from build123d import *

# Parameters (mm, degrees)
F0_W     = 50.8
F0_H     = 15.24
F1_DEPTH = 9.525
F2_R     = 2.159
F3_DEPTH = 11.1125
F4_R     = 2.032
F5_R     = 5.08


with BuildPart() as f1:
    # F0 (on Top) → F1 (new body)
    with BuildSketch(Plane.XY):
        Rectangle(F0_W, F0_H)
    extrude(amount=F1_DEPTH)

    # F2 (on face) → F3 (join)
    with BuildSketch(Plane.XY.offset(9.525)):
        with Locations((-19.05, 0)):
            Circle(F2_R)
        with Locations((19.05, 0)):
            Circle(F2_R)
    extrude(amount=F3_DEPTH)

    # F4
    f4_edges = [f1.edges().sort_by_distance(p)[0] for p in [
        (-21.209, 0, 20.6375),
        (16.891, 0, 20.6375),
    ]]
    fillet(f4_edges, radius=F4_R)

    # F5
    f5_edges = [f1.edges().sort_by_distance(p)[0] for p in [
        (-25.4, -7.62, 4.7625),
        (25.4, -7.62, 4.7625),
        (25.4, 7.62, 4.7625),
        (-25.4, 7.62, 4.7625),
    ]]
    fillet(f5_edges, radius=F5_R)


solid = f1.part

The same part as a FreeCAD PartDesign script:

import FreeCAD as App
import Part
import Sketcher

V = App.Vector
Q = App.Units.Quantity


def edges_at(feature, points):
    """Names of the edges that pass closest to the given points."""
    edges = feature.Shape.Edges
    near = lambda p: min(range(len(edges)), key=lambda i: edges[i].distToShape(Part.Vertex(*p))[0])
    return sorted({f"Edge{near(p) + 1}" for p in points})


def add_polygon(sketch, points):
    """Adds a closed chain of lines whose ends are joined by coincident constraints."""
    first, n = sketch.GeometryCount, len(points)
    for a, b in zip(points, points[1:] + points[:1]):
        sketch.addGeometry(Part.LineSegment(App.Vector(*a, 0), App.Vector(*b, 0)), False)
    for i in range(n):
        sketch.addConstraint(Sketcher.Constraint("Coincident", first + i, 2, first + (i + 1) % n, 1))

doc = App.newDocument("Part")
body = doc.addObject("PartDesign::Body", "Body")

sketch1 = doc.addObject("Sketcher::SketchObject", "Sketch")
body.addObject(sketch1)
sketch1.AttachmentSupport = (doc.XY_Plane, [""])
sketch1.MapMode = "FlatFace"
add_polygon(sketch1, [(-25.4, 7.62), (-25.4, -7.62), (25.4, -7.62), (25.4, 7.62)])
sketch1.addConstraint([
    Sketcher.Constraint("Vertical", 0),
    Sketcher.Constraint("Horizontal", 1),
    Sketcher.Constraint("Vertical", 2),
    Sketcher.Constraint("Horizontal", 3),
    Sketcher.Constraint("Symmetric", 0, 2, 2, 2, -1, 1),
    Sketcher.Constraint("DistanceX", 1, 1, 1, 2, Q("2 in")),
    Sketcher.Constraint("DistanceY", 0, 2, 0, 1, Q("0.6 in")),
])
pad1 = doc.addObject("PartDesign::Pad", "Pad")
body.addObject(pad1)
pad1.Profile = sketch1
pad1.Length = Q("0.375 in")

sketch2 = doc.addObject("Sketcher::SketchObject", "Sketch001")
body.addObject(sketch2)
sketch2.AttachmentSupport = (doc.XY_Plane, [""])
sketch2.MapMode = "FlatFace"
sketch2.AttachmentOffset = App.Placement(V(0, 0, 0.375 * 25.4), App.Rotation())
sketch2.addGeometry([
    Part.Circle(V(-19.05, 0, 0), V(0, 0, 1), 2.159),
    Part.Circle(V(19.05, 0, 0), V(0, 0, 1), 2.159),
], False)
sketch2.addConstraint([
    Sketcher.Constraint("Equal", 0, 1),
    Sketcher.Constraint("Symmetric", 0, 3, 1, 3, -1, 1),
    Sketcher.Constraint("PointOnObject", 0, 3, -1),
    Sketcher.Constraint("Diameter", 0, Q("0.17 in")),
    Sketcher.Constraint("DistanceX", 0, 3, 1, 3, Q("1.5 in")),
])
pad2 = doc.addObject("PartDesign::Pad", "Pad001")
body.addObject(pad2)
pad2.Profile = sketch2
pad2.Length = Q("0.4375 in")
doc.recompute()

fillet = doc.addObject("PartDesign::Fillet", "Fillet")
body.addObject(fillet)
fillet.Base = (pad2, edges_at(pad2, [(-21.209, 0, 20.637), (16.891, 0, 20.637)]))
fillet.Radius = Q("0.08 in")
doc.recompute()

fillet2 = doc.addObject("PartDesign::Fillet", "Fillet001")
body.addObject(fillet2)
fillet2.Base = (fillet, edges_at(fillet, [
    (-25.4, -7.62, 4.763),
    (25.4, -7.62, 4.763),
    (25.4, 7.62, 4.763),
    (-25.4, 7.62, 4.763),
]))
fillet2.Radius = Q("0.2 in")

doc.recompute()
